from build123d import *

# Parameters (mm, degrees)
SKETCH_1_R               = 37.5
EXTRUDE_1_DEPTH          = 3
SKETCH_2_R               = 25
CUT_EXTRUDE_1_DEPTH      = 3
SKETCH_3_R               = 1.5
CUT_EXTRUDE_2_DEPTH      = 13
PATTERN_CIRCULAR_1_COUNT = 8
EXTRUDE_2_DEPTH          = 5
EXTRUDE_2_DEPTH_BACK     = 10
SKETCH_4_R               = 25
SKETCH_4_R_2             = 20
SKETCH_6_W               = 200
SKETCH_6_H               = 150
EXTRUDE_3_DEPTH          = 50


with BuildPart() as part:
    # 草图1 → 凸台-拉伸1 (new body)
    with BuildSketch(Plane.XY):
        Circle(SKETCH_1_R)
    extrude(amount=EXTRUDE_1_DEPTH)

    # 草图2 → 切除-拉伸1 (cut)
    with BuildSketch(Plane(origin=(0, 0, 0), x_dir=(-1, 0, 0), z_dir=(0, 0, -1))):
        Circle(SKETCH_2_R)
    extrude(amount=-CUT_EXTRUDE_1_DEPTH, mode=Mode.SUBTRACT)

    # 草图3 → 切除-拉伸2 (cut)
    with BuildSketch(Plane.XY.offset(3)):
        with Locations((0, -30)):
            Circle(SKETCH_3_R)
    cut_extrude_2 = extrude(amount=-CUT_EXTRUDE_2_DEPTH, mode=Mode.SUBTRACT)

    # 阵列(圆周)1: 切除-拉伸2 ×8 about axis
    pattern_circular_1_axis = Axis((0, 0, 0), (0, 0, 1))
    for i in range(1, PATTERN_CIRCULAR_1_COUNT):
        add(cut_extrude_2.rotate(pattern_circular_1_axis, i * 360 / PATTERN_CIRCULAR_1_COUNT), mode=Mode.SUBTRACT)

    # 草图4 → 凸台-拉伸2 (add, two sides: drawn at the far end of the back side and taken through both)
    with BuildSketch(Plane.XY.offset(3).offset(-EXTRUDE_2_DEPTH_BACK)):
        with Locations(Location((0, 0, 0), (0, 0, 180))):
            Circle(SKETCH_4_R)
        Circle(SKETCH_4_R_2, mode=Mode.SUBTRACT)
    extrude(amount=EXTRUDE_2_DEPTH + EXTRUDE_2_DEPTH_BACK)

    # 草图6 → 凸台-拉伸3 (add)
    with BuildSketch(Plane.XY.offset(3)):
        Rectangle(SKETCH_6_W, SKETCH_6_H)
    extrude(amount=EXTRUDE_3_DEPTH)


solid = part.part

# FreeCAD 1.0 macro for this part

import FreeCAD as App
import Part
import Sketcher
from FreeCAD import Vector
Q = App.Units.Quantity

doc = App.newDocument("Part")
body = doc.addObject("PartDesign::Body", "Body")

sketch1 = body.newObject("Sketcher::SketchObject", "Sketch")
sketch1.AttachmentSupport = (doc.getObject("XY_Plane"), [""])
sketch1.MapMode = "FlatFace"
sketch1.addGeometry(Part.Circle(Vector(0, 0, 0), Vector(0, 0, 1), 38), False)
sketch1.addConstraint([
    Sketcher.Constraint("Coincident", 0, 3, -1, 1),
    Sketcher.Constraint("Diameter", 0, Q("75 mm")),
])
pad1 = body.newObject("PartDesign::Pad", "Pad")
pad1.Profile = sketch1
pad1.Length = 3

sketch2 = body.newObject("Sketcher::SketchObject", "Sketch001")
sketch2.AttachmentSupport = (doc.getObject("XY_Plane"), [""])
sketch2.MapMode = "FlatFace"
sketch2.addGeometry(Part.Circle(Vector(0, 0, 0), Vector(0, 0, 1), 25), False)
sketch2.addConstraint([
    Sketcher.Constraint("Coincident", 0, 3, -1, 1),
    Sketcher.Constraint("Diameter", 0, Q("50 mm")),
])
pocket1 = body.newObject("PartDesign::Pocket", "Pocket")
pocket1.Profile = sketch2
pocket1.Length = 3
pocket1.Reversed = True

sketch3 = body.newObject("Sketcher::SketchObject", "Sketch002")
sketch3.AttachmentSupport = (doc.getObject("XY_Plane"), [""])
sketch3.MapMode = "FlatFace"
sketch3.AttachmentOffset = App.Placement(Vector(0, 0, 3), App.Rotation())
sketch3.addGeometry(Part.Circle(Vector(0, -30, 0), Vector(0, 0, 1), 1.5), False)
sketch3.addConstraint([
    Sketcher.Constraint("PointOnObject", 0, 3, -2),
    Sketcher.Constraint("Diameter", 0, Q("3 mm")),
    Sketcher.Constraint("DistanceY", 0, 3, -1, 1, Q("30 mm")),
])
pocket2 = body.newObject("PartDesign::Pocket", "Pocket001")
pocket2.Profile = sketch3
pocket2.Length = 13
doc.recompute()

polarpattern = body.newObject("PartDesign::PolarPattern", "PolarPattern")
polarpattern.Originals = [pocket2]
polarpattern.Axis = (doc.getObject("Z_Axis"), [""])
polarpattern.Angle = 360
polarpattern.Occurrences = 8
body.Tip = polarpattern

sketch4 = body.newObject("Sketcher::SketchObject", "Sketch003")
sketch4.AttachmentSupport = (doc.getObject("XY_Plane"), [""])
sketch4.MapMode = "FlatFace"
sketch4.AttachmentOffset = App.Placement(Vector(0, 0, 3), App.Rotation())
sketch4.addGeometry([
    Part.Circle(Vector(0, 0, 0), Vector(0, 0, 1), 25),
    Part.Circle(Vector(0, 0, 0), Vector(0, 0, 1), 20),
], False)
sketch4.addConstraint([
    Sketcher.Constraint("Coincident", 0, 3, -1, 1),
    Sketcher.Constraint("Coincident", 1, 3, -1, 1),
    Sketcher.Constraint("Diameter", 0, Q("50 mm")),
    Sketcher.Constraint("Diameter", 1, Q("40 mm")),
])
pad2 = body.newObject("PartDesign::Pad", "Pad001")
pad2.Profile = sketch4
pad2.Type = "TwoLengths"
pad2.Length = 5
pad2.Length2 = 10

sketch5 = body.newObject("Sketcher::SketchObject", "Sketch004")
sketch5.AttachmentSupport = (doc.getObject("XY_Plane"), [""])
sketch5.MapMode = "FlatFace"
sketch5.AttachmentOffset = App.Placement(Vector(0, 0, 3), App.Rotation())
sketch5.addGeometry([
    Part.LineSegment(Vector(-100, 75, 0), Vector(-100, -75, 0)),
    Part.LineSegment(Vector(-100, -75, 0), Vector(100, -75, 0)),
    Part.LineSegment(Vector(100, -75, 0), Vector(100, 75, 0)),
    Part.LineSegment(Vector(100, 75, 0), Vector(-100, 75, 0)),
], False)
sketch5.addConstraint([
    Sketcher.Constraint("Coincident", 0, 2, 1, 1),
    Sketcher.Constraint("Coincident", 1, 2, 2, 1),
    Sketcher.Constraint("Coincident", 2, 2, 3, 1),
    Sketcher.Constraint("Coincident", 3, 2, 0, 1),
    Sketcher.Constraint("Vertical", 0),
    Sketcher.Constraint("Horizontal", 1),
    Sketcher.Constraint("Vertical", 2),
    Sketcher.Constraint("Horizontal", 3),
    Sketcher.Constraint("Symmetric", 0, 2, 2, 2, -1, 1),
    Sketcher.Constraint("DistanceX", 1, 1, 1, 2, Q("200 mm")),
    Sketcher.Constraint("DistanceY", 0, 2, 0, 1, Q("150 mm")),
])
pad3 = body.newObject("PartDesign::Pad", "Pad002")
pad3.Profile = sketch5
pad3.Length = 50

doc.recompute()
